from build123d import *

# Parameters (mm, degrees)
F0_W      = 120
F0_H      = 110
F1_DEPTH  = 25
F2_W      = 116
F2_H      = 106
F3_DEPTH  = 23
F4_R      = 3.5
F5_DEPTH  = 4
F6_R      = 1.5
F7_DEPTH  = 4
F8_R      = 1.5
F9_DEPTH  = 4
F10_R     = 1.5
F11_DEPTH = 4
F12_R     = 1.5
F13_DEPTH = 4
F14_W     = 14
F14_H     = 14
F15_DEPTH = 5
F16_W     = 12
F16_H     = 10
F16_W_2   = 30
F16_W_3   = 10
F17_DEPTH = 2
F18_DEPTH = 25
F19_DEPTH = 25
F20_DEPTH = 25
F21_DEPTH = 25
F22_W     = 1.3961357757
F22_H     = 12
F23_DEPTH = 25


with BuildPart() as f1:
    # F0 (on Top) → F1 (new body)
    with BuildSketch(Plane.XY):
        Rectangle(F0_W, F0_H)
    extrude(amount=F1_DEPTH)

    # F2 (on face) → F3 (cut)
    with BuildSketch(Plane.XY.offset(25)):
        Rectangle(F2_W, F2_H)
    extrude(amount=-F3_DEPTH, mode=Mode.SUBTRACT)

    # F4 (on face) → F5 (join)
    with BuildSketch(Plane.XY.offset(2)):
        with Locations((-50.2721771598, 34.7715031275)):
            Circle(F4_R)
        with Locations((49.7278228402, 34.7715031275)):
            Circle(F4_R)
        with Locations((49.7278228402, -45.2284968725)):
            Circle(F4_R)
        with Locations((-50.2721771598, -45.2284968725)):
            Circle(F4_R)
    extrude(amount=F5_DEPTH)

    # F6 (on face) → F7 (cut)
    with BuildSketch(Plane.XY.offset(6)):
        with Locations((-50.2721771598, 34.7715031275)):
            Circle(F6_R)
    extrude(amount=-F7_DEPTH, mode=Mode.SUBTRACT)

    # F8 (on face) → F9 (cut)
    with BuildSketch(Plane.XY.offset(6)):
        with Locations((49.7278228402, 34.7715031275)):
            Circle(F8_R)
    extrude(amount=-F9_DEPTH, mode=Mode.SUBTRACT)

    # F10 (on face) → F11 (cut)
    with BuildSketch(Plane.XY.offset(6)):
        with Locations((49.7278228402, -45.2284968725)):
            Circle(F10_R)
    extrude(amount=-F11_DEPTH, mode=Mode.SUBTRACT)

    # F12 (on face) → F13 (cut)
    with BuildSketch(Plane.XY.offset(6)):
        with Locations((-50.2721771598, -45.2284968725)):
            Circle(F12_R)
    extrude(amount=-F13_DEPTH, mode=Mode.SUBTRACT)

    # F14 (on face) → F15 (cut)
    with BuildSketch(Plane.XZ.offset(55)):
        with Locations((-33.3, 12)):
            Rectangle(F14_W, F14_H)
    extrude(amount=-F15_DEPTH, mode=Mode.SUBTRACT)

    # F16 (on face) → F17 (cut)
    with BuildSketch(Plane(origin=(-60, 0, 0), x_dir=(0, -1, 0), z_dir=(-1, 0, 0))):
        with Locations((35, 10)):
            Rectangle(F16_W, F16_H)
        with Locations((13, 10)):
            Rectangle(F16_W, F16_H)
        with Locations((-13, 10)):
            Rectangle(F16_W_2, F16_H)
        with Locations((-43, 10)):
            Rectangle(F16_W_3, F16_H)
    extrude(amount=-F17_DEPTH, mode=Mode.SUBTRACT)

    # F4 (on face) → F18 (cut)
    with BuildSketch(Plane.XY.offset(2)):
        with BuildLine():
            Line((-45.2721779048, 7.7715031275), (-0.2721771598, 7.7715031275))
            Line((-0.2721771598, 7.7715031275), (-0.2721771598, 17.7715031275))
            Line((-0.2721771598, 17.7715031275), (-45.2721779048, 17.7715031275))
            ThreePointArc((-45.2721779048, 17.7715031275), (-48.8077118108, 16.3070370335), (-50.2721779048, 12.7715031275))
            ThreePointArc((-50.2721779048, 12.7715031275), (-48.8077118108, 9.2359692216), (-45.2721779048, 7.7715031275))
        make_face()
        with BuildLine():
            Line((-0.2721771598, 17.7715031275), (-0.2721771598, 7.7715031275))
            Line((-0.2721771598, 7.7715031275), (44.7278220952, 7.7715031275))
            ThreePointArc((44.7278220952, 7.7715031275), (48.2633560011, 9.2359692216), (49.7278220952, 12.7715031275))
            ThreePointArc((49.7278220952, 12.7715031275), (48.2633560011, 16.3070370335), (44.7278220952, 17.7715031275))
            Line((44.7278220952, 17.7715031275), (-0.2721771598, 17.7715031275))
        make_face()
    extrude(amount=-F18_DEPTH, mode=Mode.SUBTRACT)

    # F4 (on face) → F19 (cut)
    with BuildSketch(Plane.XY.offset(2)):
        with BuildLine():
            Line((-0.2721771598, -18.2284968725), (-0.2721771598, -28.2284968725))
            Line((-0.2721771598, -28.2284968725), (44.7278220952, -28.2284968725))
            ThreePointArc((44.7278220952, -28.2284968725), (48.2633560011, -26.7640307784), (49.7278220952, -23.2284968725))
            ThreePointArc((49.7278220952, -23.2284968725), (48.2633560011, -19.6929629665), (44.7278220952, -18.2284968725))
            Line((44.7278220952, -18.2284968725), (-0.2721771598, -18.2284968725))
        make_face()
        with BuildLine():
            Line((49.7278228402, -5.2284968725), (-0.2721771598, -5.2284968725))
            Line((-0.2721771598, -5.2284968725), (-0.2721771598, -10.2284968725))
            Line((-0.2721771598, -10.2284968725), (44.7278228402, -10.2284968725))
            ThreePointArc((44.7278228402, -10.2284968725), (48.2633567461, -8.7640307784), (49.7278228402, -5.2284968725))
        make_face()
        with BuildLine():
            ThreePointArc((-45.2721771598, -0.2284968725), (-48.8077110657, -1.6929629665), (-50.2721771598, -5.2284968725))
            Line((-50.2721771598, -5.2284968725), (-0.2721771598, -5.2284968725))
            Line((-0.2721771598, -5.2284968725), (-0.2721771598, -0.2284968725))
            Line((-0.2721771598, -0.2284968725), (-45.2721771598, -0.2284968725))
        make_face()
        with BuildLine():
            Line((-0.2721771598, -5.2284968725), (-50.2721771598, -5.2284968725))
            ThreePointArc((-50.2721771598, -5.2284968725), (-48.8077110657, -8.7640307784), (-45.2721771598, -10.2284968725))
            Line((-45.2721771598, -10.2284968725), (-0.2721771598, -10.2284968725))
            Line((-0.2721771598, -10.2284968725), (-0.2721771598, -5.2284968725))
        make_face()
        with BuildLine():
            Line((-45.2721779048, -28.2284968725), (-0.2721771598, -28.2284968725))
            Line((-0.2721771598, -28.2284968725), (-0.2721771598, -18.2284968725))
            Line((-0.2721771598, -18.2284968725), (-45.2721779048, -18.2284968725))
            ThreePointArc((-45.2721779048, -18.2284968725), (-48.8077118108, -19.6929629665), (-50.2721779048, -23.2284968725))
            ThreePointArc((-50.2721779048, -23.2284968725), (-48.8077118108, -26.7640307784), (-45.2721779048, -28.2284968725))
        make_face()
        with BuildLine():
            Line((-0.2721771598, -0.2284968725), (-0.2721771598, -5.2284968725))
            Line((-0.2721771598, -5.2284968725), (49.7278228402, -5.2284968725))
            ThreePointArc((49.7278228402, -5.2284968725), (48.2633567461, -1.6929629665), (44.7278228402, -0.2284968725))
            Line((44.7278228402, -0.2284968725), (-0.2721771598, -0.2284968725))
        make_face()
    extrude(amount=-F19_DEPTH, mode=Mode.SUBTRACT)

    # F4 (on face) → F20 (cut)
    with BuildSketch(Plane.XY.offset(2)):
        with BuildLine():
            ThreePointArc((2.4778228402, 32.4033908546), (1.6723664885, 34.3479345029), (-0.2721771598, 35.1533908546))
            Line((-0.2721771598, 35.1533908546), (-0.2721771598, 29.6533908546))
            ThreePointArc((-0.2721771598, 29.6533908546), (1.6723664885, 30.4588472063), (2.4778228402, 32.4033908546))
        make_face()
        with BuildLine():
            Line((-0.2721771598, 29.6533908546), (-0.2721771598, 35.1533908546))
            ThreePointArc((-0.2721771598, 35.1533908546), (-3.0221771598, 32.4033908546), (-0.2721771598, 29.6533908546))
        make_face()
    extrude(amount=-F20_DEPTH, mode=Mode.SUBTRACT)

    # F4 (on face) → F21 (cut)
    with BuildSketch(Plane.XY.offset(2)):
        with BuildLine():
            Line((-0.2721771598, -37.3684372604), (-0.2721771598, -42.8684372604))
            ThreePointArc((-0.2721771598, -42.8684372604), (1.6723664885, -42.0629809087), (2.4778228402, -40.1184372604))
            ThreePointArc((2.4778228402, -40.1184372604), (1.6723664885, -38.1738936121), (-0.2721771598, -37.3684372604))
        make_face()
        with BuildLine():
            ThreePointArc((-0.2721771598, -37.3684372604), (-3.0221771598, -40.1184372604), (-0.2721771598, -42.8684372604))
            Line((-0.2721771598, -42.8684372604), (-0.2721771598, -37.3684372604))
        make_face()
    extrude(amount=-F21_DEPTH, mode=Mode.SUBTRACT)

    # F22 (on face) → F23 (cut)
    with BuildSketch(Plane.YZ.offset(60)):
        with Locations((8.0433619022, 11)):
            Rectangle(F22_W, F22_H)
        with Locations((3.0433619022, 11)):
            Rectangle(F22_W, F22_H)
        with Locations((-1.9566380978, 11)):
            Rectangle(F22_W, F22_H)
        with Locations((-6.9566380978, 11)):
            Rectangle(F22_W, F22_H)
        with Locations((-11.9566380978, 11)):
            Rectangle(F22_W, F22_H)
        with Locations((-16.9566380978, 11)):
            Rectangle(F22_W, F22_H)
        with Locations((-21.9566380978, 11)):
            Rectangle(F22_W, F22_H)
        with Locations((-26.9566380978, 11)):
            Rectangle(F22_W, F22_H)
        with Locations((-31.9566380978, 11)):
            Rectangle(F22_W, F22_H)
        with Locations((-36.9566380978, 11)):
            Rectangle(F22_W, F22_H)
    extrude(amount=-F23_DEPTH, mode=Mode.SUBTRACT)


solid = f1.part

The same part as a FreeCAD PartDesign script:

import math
import FreeCAD as App
import Part
import Sketcher
from FreeCAD import Vector
Q = App.Units.Quantity


def add_polygon(sketch, points):
    """Adds a closed chain of lines whose ends are joined by coincident constraints."""
    first, n = sketch.GeometryCount, len(points)
    for a, b in zip(points, points[1:] + points[:1]):
        sketch.addGeometry(Part.LineSegment(App.Vector(*a, 0), App.Vector(*b, 0)), False)
    for i in range(n):
        sketch.addConstraint(Sketcher.Constraint("Coincident", first + i, 2, first + (i + 1) % n, 1))

doc = App.newDocument("Part")
params = doc.addObject("Spreadsheet::Sheet", "Params")
for row, (alias, value) in enumerate([
    ("sketch1_width", "120 mm"),
    ("sketch1_height", "110 mm"),
    ("pad1_length", "25 mm"),
    ("sketch2_width", "116 mm"),
    ("sketch2_height", "106 mm"),
    ("pocket1_length", "23 mm"),
    ("sketch3_diameter", "7 mm"),
    ("pad2_length", "4 mm"),
    ("sketch4_diameter", "3 mm"),
    ("pocket2_length", "4 mm"),
    ("sketch5_diameter", "3 mm"),
    ("pocket3_length", "4 mm"),
    ("sketch6_diameter", "3 mm"),
    ("pocket4_length", "4 mm"),
    ("sketch7_diameter", "3 mm"),
    ("pocket5_length", "4 mm"),
    ("sketch8_width", "14 mm"),
    ("pocket6_length", "5 mm"),
    ("sketch9_width", "12 mm"),
    ("sketch9_width2", "30 mm"),
    ("sketch9_width3", "10 mm"),
    ("pocket7_length", "2 mm"),
    ("sketch10_radius", "5 mm"),
    ("sketch10_width", "90 mm"),
    ("pocket8_length", "25 mm"),
    ("sketch11_radius", "5 mm"),
    ("sketch11_width", "90 mm"),
    ("pocket9_length", "25 mm"),
    ("sketch12_radius", "2.75 mm"),
    ("pocket10_length", "25 mm"),
    ("sketch13_radius", "2.75 mm"),
    ("pocket11_length", "25 mm"),
    ("sketch14_height", "12 mm"),
    ("pocket12_length", "25 mm"),
], start=1):
    params.set(f"A{row}", alias)
    params.set(f"B{row}", "=" + value)
    params.setAlias(f"B{row}", alias)

body = doc.addObject("PartDesign::Body", "Body")

# Sketch on XY plane
sketch1 = doc.addObject("Sketcher::SketchObject", "Sketch")
body.addObject(sketch1)
sketch1.AttachmentSupport = (doc.XY_Plane, [""])
sketch1.MapMode = "FlatFace"
add_polygon(sketch1, [(-60, 55), (-60, -55), (60, -55), (60, 55)])  # lines 0-3
sketch1.addConstraint([
    Sketcher.Constraint("Vertical", 0),
    Sketcher.Constraint("Horizontal", 1),
    Sketcher.Constraint("Vertical", 2),
    Sketcher.Constraint("Horizontal", 3),
    Sketcher.Constraint("Symmetric", 0, 2, 2, 2, -1, 1),
    Sketcher.Constraint("DistanceX", 1, 1, 1, 2, Q("120 mm")),
    Sketcher.Constraint("DistanceY", 0, 2, 0, 1, Q("110 mm")),
])
sketch1.setExpression("Constraints[9]", "Params.sketch1_width")
sketch1.setExpression("Constraints[10]", "Params.sketch1_height")
pad1 = doc.addObject("PartDesign::Pad", "Pad")
body.addObject(pad1)
pad1.Profile = sketch1
pad1.setExpression("Length", "Params.pad1_length")

# Sketch on XY plane
sketch2 = doc.addObject("Sketcher::SketchObject", "Sketch001")
body.addObject(sketch2)
sketch2.AttachmentSupport = (doc.XY_Plane, [""])
sketch2.MapMode = "FlatFace"
sketch2.AttachmentOffset = App.Placement(Vector(0, 0, 25), App.Rotation())
add_polygon(sketch2, [(-58, 53), (-58, -53), (58, -53), (58, 53)])  # lines 0-3
sketch2.addConstraint([
    Sketcher.Constraint("Vertical", 0),
    Sketcher.Constraint("Horizontal", 1),
    Sketcher.Constraint("Vertical", 2),
    Sketcher.Constraint("Horizontal", 3),
    Sketcher.Constraint("Symmetric", 0, 2, 2, 2, -1, 1),
    Sketcher.Constraint("DistanceX", 1, 1, 1, 2, Q("116 mm")),
    Sketcher.Constraint("DistanceY", 0, 2, 0, 1, Q("106 mm")),
])
sketch2.setExpression("Constraints[9]", "Params.sketch2_width")
sketch2.setExpression("Constraints[10]", "Params.sketch2_height")
pocket1 = doc.addObject("PartDesign::Pocket", "Pocket")
body.addObject(pocket1)
pocket1.Profile = sketch2
pocket1.setExpression("Length", "Params.pocket1_length")

# Sketch on XY plane
sketch3 = doc.addObject("Sketcher::SketchObject", "Sketch002")
body.addObject(sketch3)
sketch3.AttachmentSupport = (doc.XY_Plane, [""])
sketch3.MapMode = "FlatFace"
sketch3.AttachmentOffset = App.Placement(Vector(0, 0, 2), App.Rotation())
sketch3.addGeometry([
    Part.Circle(Vector(-50.3, 34.8, 0), Vector(0, 0, 1), 3.5),
    Part.Circle(Vector(49.7, 34.8, 0), Vector(0, 0, 1), 3.5),
    Part.Circle(Vector(49.7, -45.2, 0), Vector(0, 0, 1), 3.5),
    Part.Circle(Vector(-50.3, -45.2, 0), Vector(0, 0, 1), 3.5),
], False)
sketch3.addConstraint([
    Sketcher.Constraint("Equal", 0, 1),
    Sketcher.Constraint("Equal", 1, 2),
    Sketcher.Constraint("Equal", 2, 3),
    Sketcher.Constraint("Horizontal", 0, 3, 1, 3),
    Sketcher.Constraint("Horizontal", 2, 3, 3, 3),
    Sketcher.Constraint("Vertical", 1, 3, 2, 3),
    Sketcher.Constraint("Vertical", 0, 3, 3, 3),
    Sketcher.Constraint("Diameter", 0, Q("7 mm")),
    Sketcher.Constraint("DistanceX", 0, 3, 1, 3, Q("100 mm")),
    Sketcher.Constraint("DistanceY", 2, 3, 1, 3, Q("80 mm")),
    Sketcher.Constraint("DistanceX", 0, 3, -1, 1, Q("50.272177 mm")),
    Sketcher.Constraint("DistanceY", -1, 1, 0, 3, Q("34.771503 mm")),
])
sketch3.setExpression("Constraints[7]", "Params.sketch3_diameter")
pad2 = doc.addObject("PartDesign::Pad", "Pad001")
body.addObject(pad2)
pad2.Profile = sketch3
pad2.setExpression("Length", "Params.pad2_length")

# Sketch on XY plane
sketch4 = doc.addObject("Sketcher::SketchObject", "Sketch003")
body.addObject(sketch4)
sketch4.AttachmentSupport = (doc.XY_Plane, [""])
sketch4.MapMode = "FlatFace"
sketch4.AttachmentOffset = App.Placement(Vector(0, 0, 6), App.Rotation())
sketch4.addGeometry(Part.Circle(Vector(-50.3, 34.8, 0), Vector(0, 0, 1), 1.5), False)
sketch4.addConstraint([
    Sketcher.Constraint("Diameter", 0, Q("3 mm")),
    Sketcher.Constraint("DistanceX", 0, 3, -1, 1, Q("50.272177 mm")),
    Sketcher.Constraint("DistanceY", -1, 1, 0, 3, Q("34.771503 mm")),
])
sketch4.setExpression("Constraints[0]", "Params.sketch4_diameter")
pocket2 = doc.addObject("PartDesign::Pocket", "Pocket001")
body.addObject(pocket2)
pocket2.Profile = sketch4
pocket2.setExpression("Length", "Params.pocket2_length")

# Sketch on XY plane
sketch5 = doc.addObject("Sketcher::SketchObject", "Sketch004")
body.addObject(sketch5)
sketch5.AttachmentSupport = (doc.XY_Plane, [""])
sketch5.MapMode = "FlatFace"
sketch5.AttachmentOffset = App.Placement(Vector(0, 0, 6), App.Rotation())
sketch5.addGeometry(Part.Circle(Vector(49.7, 34.8, 0), Vector(0, 0, 1), 1.5), False)
sketch5.addConstraint([
    Sketcher.Constraint("Diameter", 0, Q("3 mm")),
    Sketcher.Constraint("DistanceX", -1, 1, 0, 3, Q("49.727823 mm")),
    Sketcher.Constraint("DistanceY", -1, 1, 0, 3, Q("34.771503 mm")),
])
sketch5.setExpression("Constraints[0]", "Params.sketch5_diameter")
pocket3 = doc.addObject("PartDesign::Pocket", "Pocket002")
body.addObject(pocket3)
pocket3.Profile = sketch5
pocket3.setExpression("Length", "Params.pocket3_length")

# Sketch on XY plane
sketch6 = doc.addObject("Sketcher::SketchObject", "Sketch005")
body.addObject(sketch6)
sketch6.AttachmentSupport = (doc.XY_Plane, [""])
sketch6.MapMode = "FlatFace"
sketch6.AttachmentOffset = App.Placement(Vector(0, 0, 6), App.Rotation())
sketch6.addGeometry(Part.Circle(Vector(49.7, -45.2, 0), Vector(0, 0, 1), 1.5), False)
sketch6.addConstraint([
    Sketcher.Constraint("Diameter", 0, Q("3 mm")),
    Sketcher.Constraint("DistanceX", -1, 1, 0, 3, Q("49.727823 mm")),
    Sketcher.Constraint("DistanceY", 0, 3, -1, 1, Q("45.228497 mm")),
])
sketch6.setExpression("Constraints[0]", "Params.sketch6_diameter")
pocket4 = doc.addObject("PartDesign::Pocket", "Pocket003")
body.addObject(pocket4)
pocket4.Profile = sketch6
pocket4.setExpression("Length", "Params.pocket4_length")

# Sketch on XY plane
sketch7 = doc.addObject("Sketcher::SketchObject", "Sketch006")
body.addObject(sketch7)
sketch7.AttachmentSupport = (doc.XY_Plane, [""])
sketch7.MapMode = "FlatFace"
sketch7.AttachmentOffset = App.Placement(Vector(0, 0, 6), App.Rotation())
sketch7.addGeometry(Part.Circle(Vector(-50.3, -45.2, 0), Vector(0, 0, 1), 1.5), False)
sketch7.addConstraint([
    Sketcher.Constraint("Diameter", 0, Q("3 mm")),
    Sketcher.Constraint("DistanceX", 0, 3, -1, 1, Q("50.272177 mm")),
    Sketcher.Constraint("DistanceY", 0, 3, -1, 1, Q("45.228497 mm")),
])
sketch7.setExpression("Constraints[0]", "Params.sketch7_diameter")
pocket5 = doc.addObject("PartDesign::Pocket", "Pocket004")
body.addObject(pocket5)
pocket5.Profile = sketch7
pocket5.setExpression("Length", "Params.pocket5_length")

# Sketch on XZ plane
sketch8 = doc.addObject("Sketcher::SketchObject", "Sketch007")
body.addObject(sketch8)
sketch8.AttachmentSupport = (doc.XZ_Plane, [""])
sketch8.MapMode = "FlatFace"
sketch8.AttachmentOffset = App.Placement(Vector(0, 0, 55), App.Rotation())
add_polygon(sketch8, [(-40, 19), (-40, 5), (-26, 5), (-26, 19)])  # lines 0-3
sketch8.addConstraint([
    Sketcher.Constraint("Vertical", 0),
    Sketcher.Constraint("Horizontal", 1),
    Sketcher.Constraint("Vertical", 2),
    Sketcher.Constraint("Horizontal", 3),
    Sketcher.Constraint("Equal", 3, 0),
    Sketcher.Constraint("DistanceX", 1, 1, 1, 2, Q("14 mm")),
    Sketcher.Constraint("DistanceY", -1, 1, 0, 2, Q("5 mm")),
    Sketcher.Constraint("DistanceX", 0, 2, -1, 1, Q("40.3 mm")),
])
sketch8.setExpression("Constraints[9]", "Params.sketch8_width")
pocket6 = doc.addObject("PartDesign::Pocket", "Pocket005")
body.addObject(pocket6)
pocket6.Profile = sketch8
pocket6.setExpression("Length", "Params.pocket6_length")

# Sketch on YZ plane
sketch9 = doc.addObject("Sketcher::SketchObject", "Sketch008")
body.addObject(sketch9)
sketch9.AttachmentSupport = (doc.YZ_Plane, [""])
sketch9.MapMode = "FlatFace"
sketch9.AttachmentOffset = App.Placement(Vector(0, 0, -60), App.Rotation())
add_polygon(sketch9, [(-29, 15), (-29, 5), (-41, 5), (-41, 15)])  # lines 0-3
add_polygon(sketch9, [(-7, 15), (-7, 5), (-19, 5), (-19, 15)])  # lines 4-7
add_polygon(sketch9, [(28, 15), (28, 5), (-2, 5), (-2, 15)])  # lines 8-11
add_polygon(sketch9, [(48, 15), (48, 5), (38, 5), (38, 15)])  # lines 12-15
sketch9.addConstraint([
    Sketcher.Constraint("Vertical", 0),
    Sketcher.Constraint("Horizontal", 1),
    Sketcher.Constraint("Vertical", 2),
    Sketcher.Constraint("Horizontal", 3),
    Sketcher.Constraint("Vertical", 4),
    Sketcher.Constraint("Horizontal", 5),
    Sketcher.Constraint("Vertical", 6),
    Sketcher.Constraint("Horizontal", 7),
    Sketcher.Constraint("Vertical", 8),
    Sketcher.Constraint("Horizontal", 9),
    Sketcher.Constraint("Vertical", 10),
    Sketcher.Constraint("Horizontal", 11),
    Sketcher.Constraint("Vertical", 12),
    Sketcher.Constraint("Horizontal", 13),
    Sketcher.Constraint("Vertical", 14),
    Sketcher.Constraint("Horizontal", 15),
    Sketcher.Constraint("Horizontal", 1, 2, 4, 2),
    Sketcher.Constraint("Horizontal", 3, 2, 6, 2),
    Sketcher.Constraint("Horizontal", 5, 2, 8, 2),
    Sketcher.Constraint("Horizontal", 7, 2, 10, 2),
    Sketcher.Constraint("Horizontal", 9, 2, 12, 2),
    Sketcher.Constraint("Horizontal", 11, 2, 14, 2),
    Sketcher.Constraint("Equal", 3, 5),
    Sketcher.Constraint("Equal", 15, 0),
    Sketcher.Constraint("DistanceX", 1, 2, 1, 1, Q("12 mm")),
    Sketcher.Constraint("DistanceX", 9, 2, 9, 1, Q("30 mm")),
    Sketcher.Constraint("DistanceX", 13, 2, 13, 1, Q("10 mm")),
    Sketcher.Constraint("DistanceX", 0, 2, -1, 1, Q("29 mm")),
    Sketcher.Constraint("DistanceY", -1, 1, 0, 2, Q("5 mm")),
    Sketcher.Constraint("DistanceX", 4, 2, -1, 1, Q("7 mm")),
    Sketcher.Constraint("DistanceX", -1, 1, 8, 2, Q("28 mm")),
    Sketcher.Constraint("DistanceX", -1, 1, 12, 2, Q("48 mm")),
])
sketch9.setExpression("Constraints[40]", "Params.sketch9_width")
sketch9.setExpression("Constraints[41]", "Params.sketch9_width2")
sketch9.setExpression("Constraints[42]", "Params.sketch9_width3")
pocket7 = doc.addObject("PartDesign::Pocket", "Pocket006")
body.addObject(pocket7)
pocket7.Profile = sketch9
pocket7.setExpression("Length", "Params.pocket7_length")
pocket7.Reversed = True

# Sketch on XY plane
sketch10 = doc.addObject("Sketcher::SketchObject", "Sketch009")
body.addObject(sketch10)
sketch10.AttachmentSupport = (doc.XY_Plane, [""])
sketch10.MapMode = "FlatFace"
sketch10.AttachmentOffset = App.Placement(Vector(0, 0, 2), App.Rotation())
sketch10.addGeometry([
    Part.LineSegment(Vector(-45, 8, 0), Vector(45, 8, 0)),  # 0
    Part.ArcOfCircle(Part.Circle(Vector(45, 13, 0), Vector(0, 0, 1), 5), math.radians(-90), math.radians(0)),  # 1
    Part.ArcOfCircle(Part.Circle(Vector(45, 13, 0), Vector(0, 0, 1), 5), math.radians(0), math.radians(90)),  # 2
    Part.LineSegment(Vector(45, 18, 0), Vector(-45, 18, 0)),  # 3
    Part.ArcOfCircle(Part.Circle(Vector(-45, 13, 0), Vector(0, 0, 1), 5), math.radians(90), math.radians(180)),  # 4
    Part.ArcOfCircle(Part.Circle(Vector(-45, 13, 0), Vector(0, 0, 1), 5), math.radians(180), math.radians(270)),  # 5
], False)
sketch10.addConstraint([
    Sketcher.Constraint("Tangent", 0, 2, 1, 1),
    Sketcher.Constraint("Tangent", 1, 2, 2, 1),
    Sketcher.Constraint("Tangent", 2, 2, 3, 1),
    Sketcher.Constraint("Tangent", 3, 2, 4, 1),
    Sketcher.Constraint("Tangent", 4, 2, 5, 1),
    Sketcher.Constraint("Tangent", 5, 2, 0, 1),
    Sketcher.Constraint("Horizontal", 0),
    Sketcher.Constraint("Horizontal", 3),
    Sketcher.Constraint("Equal", 1, 2),
    Sketcher.Constraint("Equal", 2, 4),
    Sketcher.Constraint("Horizontal", 5, 3, 1, 2),
    Sketcher.Constraint("Horizontal", 1, 2, 4, 2),
    Sketcher.Constraint("Radius", 1, Q("5 mm")),
    Sketcher.Constraint("DistanceX", 0, 1, 0, 2, Q("90 mm")),
    Sketcher.Constraint("DistanceX", -1, 1, 1, 3, Q("44.727822 mm")),
    Sketcher.Constraint("DistanceY", -1, 1, 1, 3, Q("12.771503 mm")),
])
sketch10.setExpression("Constraints[12]", "Params.sketch10_radius")
sketch10.setExpression("Constraints[13]", "Params.sketch10_width")
pocket8 = doc.addObject("PartDesign::Pocket", "Pocket007")
body.addObject(pocket8)
pocket8.Profile = sketch10
pocket8.setExpression("Length", "Params.pocket8_length")

# Sketch on XY plane
sketch11 = doc.addObject("Sketcher::SketchObject", "Sketch010")
body.addObject(sketch11)
sketch11.AttachmentSupport = (doc.XY_Plane, [""])
sketch11.MapMode = "FlatFace"
sketch11.AttachmentOffset = App.Placement(Vector(0, 0, 2), App.Rotation())
sketch11.addGeometry([
    Part.ArcOfCircle(Part.Circle(Vector(45, -23, 0), Vector(0, 0, 1), 5), math.radians(-90), math.radians(0)),  # 0
    Part.ArcOfCircle(Part.Circle(Vector(45, -23, 0), Vector(0, 0, 1), 5), math.radians(0), math.radians(90)),  # 1
    Part.LineSegment(Vector(45, -18, 0), Vector(-45, -18, 0)),  # 2
    Part.ArcOfCircle(Part.Circle(Vector(-45, -23, 0), Vector(0, 0, 1), 5), math.radians(90), math.radians(180)),  # 3
    Part.ArcOfCircle(Part.Circle(Vector(-45, -23, 0), Vector(0, 0, 1), 5), math.radians(180), math.radians(270)),  # 4
    Part.LineSegment(Vector(-45, -28, 0), Vector(45, -28, 0)),  # 5
    Part.ArcOfCircle(Part.Circle(Vector(-45, -5, 0), Vector(0, 0, 1), 5), math.radians(90), math.radians(180)),  # 6
    Part.ArcOfCircle(Part.Circle(Vector(-45, -5, 0), Vector(0, 0, 1), 5), math.radians(-180), math.radians(-90)),  # 7
    Part.LineSegment(Vector(-45, -10, 0), Vector(45, -10, 0)),  # 8
    Part.ArcOfCircle(Part.Circle(Vector(45, -5, 0), Vector(0, 0, 1), 5), math.radians(-90), math.radians(0)),  # 9
    Part.ArcOfCircle(Part.Circle(Vector(45, -5, 0), Vector(0, 0, 1), 5), math.radians(0), math.radians(90)),  # 10
    Part.LineSegment(Vector(45, 0, 0), Vector(-45, 0, 0)),  # 11
], False)
sketch11.addConstraint([
    Sketcher.Constraint("Tangent", 0, 2, 1, 1),
    Sketcher.Constraint("Tangent", 1, 2, 2, 1),
    Sketcher.Constraint("Tangent", 2, 2, 3, 1),
    Sketcher.Constraint("Tangent", 3, 2, 4, 1),
    Sketcher.Constraint("Tangent", 4, 2, 5, 1),
    Sketcher.Constraint("Tangent", 5, 2, 0, 1),
    Sketcher.Constraint("Tangent", 6, 2, 7, 1),
    Sketcher.Constraint("Tangent", 7, 2, 8, 1),
    Sketcher.Constraint("Tangent", 8, 2, 9, 1),
    Sketcher.Constraint("Tangent", 9, 2, 10, 1),
    Sketcher.Constraint("Tangent", 10, 2, 11, 1),
    Sketcher.Constraint("Tangent", 11, 2, 6, 1),
    Sketcher.Constraint("Horizontal", 2),
    Sketcher.Constraint("Horizontal", 5),
    Sketcher.Constraint("Horizontal", 8),
    Sketcher.Constraint("Horizontal", 11),
    Sketcher.Constraint("Equal", 0, 1),
    Sketcher.Constraint("Equal", 1, 3),
    Sketcher.Constraint("Equal", 4, 6),
    Sketcher.Constraint("Equal", 6, 7),
    Sketcher.Constraint("Equal", 7, 9),
    Sketcher.Constraint("Horizontal", 4, 3, 0, 2),
    Sketcher.Constraint("Horizontal", 0, 2, 3, 2),
    Sketcher.Constraint("Horizontal", 10, 3, 6, 2),
    Sketcher.Constraint("Horizontal", 6, 2, 9, 2),
    Sketcher.Constraint("Vertical", 4, 3, 6, 3),
    Sketcher.Constraint("Vertical", 1, 3, 9, 3),
    Sketcher.Constraint("Radius", 0, Q("5 mm")),
    Sketcher.Constraint("DistanceX", 2, 2, 2, 1, Q("90 mm")),
    Sketcher.Constraint("DistanceY", 3, 3, 6, 3, Q("18 mm")),
    Sketcher.Constraint("DistanceX", -1, 1, 0, 3, Q("44.727822 mm")),
    Sketcher.Constraint("DistanceY", 0, 3, -1, 1, Q("23.228497 mm")),
])
sketch11.setExpression("Constraints[27]", "Params.sketch11_radius")
sketch11.setExpression("Constraints[28]", "Params.sketch11_width")
pocket9 = doc.addObject("PartDesign::Pocket", "Pocket008")
body.addObject(pocket9)
pocket9.Profile = sketch11
pocket9.setExpression("Length", "Params.pocket9_length")

# Sketch on XY plane
sketch12 = doc.addObject("Sketcher::SketchObject", "Sketch011")
body.addObject(sketch12)
sketch12.AttachmentSupport = (doc.XY_Plane, [""])
sketch12.MapMode = "FlatFace"
sketch12.AttachmentOffset = App.Placement(Vector(0, 0, 2), App.Rotation())
sketch12.addGeometry([
    Part.ArcOfCircle(Part.Circle(Vector(-0.3, 32.4, 0), Vector(0, 0, 1), 2.8), math.radians(0), math.radians(90)),
    Part.ArcOfCircle(Part.Circle(Vector(-0.3, 32.4, 0), Vector(0, 0, 1), 2.8), math.radians(90), math.radians(270)),
    Part.ArcOfCircle(Part.Circle(Vector(-0.3, 32.4, 0), Vector(0, 0, 1), 2.8), math.radians(-90), math.radians(0)),
], False)
sketch12.addConstraint([
    Sketcher.Constraint("Tangent", 0, 2, 1, 1),
    Sketcher.Constraint("Tangent", 1, 2, 2, 1),
    Sketcher.Constraint("Tangent", 2, 2, 0, 1),
    Sketcher.Constraint("Horizontal", 1, 3, 2, 2),
    Sketcher.Constraint("Vertical", 2, 3, 0, 2),
    Sketcher.Constraint("Vertical", 0, 2, 1, 2),
    Sketcher.Constraint("Radius", 0, Q("2.75 mm")),
    Sketcher.Constraint("DistanceY", -1, 1, 0, 3, Q("32.403391 mm")),
    Sketcher.Constraint("DistanceX", 0, 3, -1, 1, Q("0.272177 mm")),
])
sketch12.setExpression("Constraints[6]", "Params.sketch12_radius")
pocket10 = doc.addObject("PartDesign::Pocket", "Pocket009")
body.addObject(pocket10)
pocket10.Profile = sketch12
pocket10.setExpression("Length", "Params.pocket10_length")

# Sketch on XY plane
sketch13 = doc.addObject("Sketcher::SketchObject", "Sketch012")
body.addObject(sketch13)
sketch13.AttachmentSupport = (doc.XY_Plane, [""])
sketch13.MapMode = "FlatFace"
sketch13.AttachmentOffset = App.Placement(Vector(0, 0, 2), App.Rotation())
sketch13.addGeometry([
    Part.ArcOfCircle(Part.Circle(Vector(-0.3, -40.1, 0), Vector(0, 0, 1), 2.8), math.radians(-90), math.radians(0)),
    Part.ArcOfCircle(Part.Circle(Vector(-0.3, -40.1, 0), Vector(0, 0, 1), 2.8), math.radians(0), math.radians(90)),
    Part.ArcOfCircle(Part.Circle(Vector(-0.3, -40.1, 0), Vector(0, 0, 1), 2.8), math.radians(90), math.radians(270)),
], False)
sketch13.addConstraint([
    Sketcher.Constraint("Tangent", 0, 2, 1, 1),
    Sketcher.Constraint("Tangent", 1, 2, 2, 1),
    Sketcher.Constraint("Tangent", 2, 2, 0, 1),
    Sketcher.Constraint("Horizontal", 2, 3, 0, 2),
    Sketcher.Constraint("Vertical", 2, 3, 1, 2),
    Sketcher.Constraint("Vertical", 1, 2, 2, 2),
    Sketcher.Constraint("Radius", 0, Q("2.75 mm")),
    Sketcher.Constraint("DistanceX", 0, 3, -1, 1, Q("0.272177 mm")),
    Sketcher.Constraint("DistanceY", 0, 3, -1, 1, Q("40.118437 mm")),
])
sketch13.setExpression("Constraints[6]", "Params.sketch13_radius")
pocket11 = doc.addObject("PartDesign::Pocket", "Pocket010")
body.addObject(pocket11)
pocket11.Profile = sketch13
pocket11.setExpression("Length", "Params.pocket11_length")

# Sketch on YZ plane
sketch14 = doc.addObject("Sketcher::SketchObject", "Sketch013")
body.addObject(sketch14)
sketch14.AttachmentSupport = (doc.YZ_Plane, [""])
sketch14.MapMode = "FlatFace"
sketch14.AttachmentOffset = App.Placement(Vector(0, 0, 60), App.Rotation())
add_polygon(sketch14, [(7.3, 17), (7.3, 5), (8.7, 5), (8.7, 17)])  # lines 0-3
add_polygon(sketch14, [(2.3, 17), (2.3, 5), (3.7, 5), (3.7, 17)])  # lines 4-7
add_polygon(sketch14, [(-2.7, 17), (-2.7, 5), (-1.3, 5), (-1.3, 17)])  # lines 8-11
add_polygon(sketch14, [(-7.7, 17), (-7.7, 5), (-6.3, 5), (-6.3, 17)])  # lines 12-15
add_polygon(sketch14, [(-12.7, 17), (-12.7, 5), (-11.3, 5), (-11.3, 17)])  # lines 16-19
add_polygon(sketch14, [(-17.7, 17), (-17.7, 5), (-16.3, 5), (-16.3, 17)])  # lines 20-23
add_polygon(sketch14, [(-22.7, 17), (-22.7, 5), (-21.3, 5), (-21.3, 17)])  # lines 24-27
add_polygon(sketch14, [(-27.7, 17), (-27.7, 5), (-26.3, 5), (-26.3, 17)])  # lines 28-31
add_polygon(sketch14, [(-32.7, 17), (-32.7, 5), (-31.3, 5), (-31.3, 17)])  # lines 32-35
add_polygon(sketch14, [(-37.7, 17), (-37.7, 5), (-36.3, 5), (-36.3, 17)])  # lines 36-39
sketch14.addConstraint([
    Sketcher.Constraint("Vertical", 0),
    Sketcher.Constraint("Horizontal", 1),
    Sketcher.Constraint("Vertical", 2),
    Sketcher.Constraint("Horizontal", 3),
    Sketcher.Constraint("Vertical", 4),
    Sketcher.Constraint("Horizontal", 5),
    Sketcher.Constraint("Vertical", 6),
    Sketcher.Constraint("Horizontal", 7),
    Sketcher.Constraint("Vertical", 8),
    Sketcher.Constraint("Horizontal", 9),
    Sketcher.Constraint("Vertical", 10),
    Sketcher.Constraint("Horizontal", 11),
    Sketcher.Constraint("Vertical", 12),
    Sketcher.Constraint("Horizontal", 13),
    Sketcher.Constraint("Vertical", 14),
    Sketcher.Constraint("Horizontal", 15),
    Sketcher.Constraint("Vertical", 16),
    Sketcher.Constraint("Horizontal", 17),
    Sketcher.Constraint("Vertical", 18),
    Sketcher.Constraint("Horizontal", 19),
    Sketcher.Constraint("Vertical", 20),
    Sketcher.Constraint("Horizontal", 21),
    Sketcher.Constraint("Vertical", 22),
    Sketcher.Constraint("Horizontal", 23),
    Sketcher.Constraint("Vertical", 24),
    Sketcher.Constraint("Horizontal", 25),
    Sketcher.Constraint("Vertical", 26),
    Sketcher.Constraint("Horizontal", 27),
    Sketcher.Constraint("Vertical", 28),
    Sketcher.Constraint("Horizontal", 29),
    Sketcher.Constraint("Vertical", 30),
    Sketcher.Constraint("Horizontal", 31),
    Sketcher.Constraint("Vertical", 32),
    Sketcher.Constraint("Horizontal", 33),
    Sketcher.Constraint("Vertical", 34),
    Sketcher.Constraint("Horizontal", 35),
    Sketcher.Constraint("Vertical", 36),
    Sketcher.Constraint("Horizontal", 37),
    Sketcher.Constraint("Vertical", 38),
    Sketcher.Constraint("Horizontal", 39),
    Sketcher.Constraint("Horizontal", 1, 2, 4, 2),
    Sketcher.Constraint("Horizontal", 3, 2, 6, 2),
    Sketcher.Constraint("Horizontal", 5, 2, 8, 2),
    Sketcher.Constraint("Horizontal", 7, 2, 10, 2),
    Sketcher.Constraint("Horizontal", 9, 2, 12, 2),
    Sketcher.Constraint("Horizontal", 11, 2, 14, 2),
    Sketcher.Constraint("Horizontal", 13, 2, 16, 2),
    Sketcher.Constraint("Horizontal", 15, 2, 18, 2),
    Sketcher.Constraint("Horizontal", 17, 2, 20, 2),
    Sketcher.Constraint("Horizontal", 19, 2, 22, 2),
    Sketcher.Constraint("Horizontal", 21, 2, 24, 2),
    Sketcher.Constraint("Horizontal", 23, 2, 26, 2),
    Sketcher.Constraint("Horizontal", 25, 2, 28, 2),
    Sketcher.Constraint("Horizontal", 27, 2, 30, 2),
    Sketcher.Constraint("Horizontal", 29, 2, 32, 2),
    Sketcher.Constraint("Horizontal", 31, 2, 34, 2),
    Sketcher.Constraint("Horizontal", 33, 2, 36, 2),
    Sketcher.Constraint("Horizontal", 35, 2, 38, 2),
    Sketcher.Constraint("Equal", 3, 5),
    Sketcher.Constraint("Equal", 7, 9),
    Sketcher.Constraint("Equal", 11, 13),
    Sketcher.Constraint("Equal", 15, 17),
    Sketcher.Constraint("Equal", 19, 21),
    Sketcher.Constraint("Equal", 23, 25),
    Sketcher.Constraint("Equal", 27, 29),
    Sketcher.Constraint("Equal", 31, 33),
    Sketcher.Constraint("Equal", 35, 37),
    Sketcher.Constraint("DistanceY", 0, 2, 0, 1, Q("12 mm")),
    Sketcher.Constraint("DistanceY", -1, 1, 0, 2, Q("5 mm")),
    Sketcher.Constraint("DistanceX", 4, 2, 0, 2, Q("5 mm")),
    Sketcher.Constraint("DistanceX", 8, 2, 4, 2, Q("5 mm")),
    Sketcher.Constraint("DistanceX", 12, 2, 8, 2, Q("5 mm")),
    Sketcher.Constraint("DistanceX", 16, 2, 12, 2, Q("5 mm")),
    Sketcher.Constraint("DistanceX", 20, 2, 16, 2, Q("5 mm")),
    Sketcher.Constraint("DistanceX", 24, 2, 20, 2, Q("5 mm")),
    Sketcher.Constraint("DistanceX", 28, 2, 24, 2, Q("5 mm")),
    Sketcher.Constraint("DistanceX", 32, 2, 28, 2, Q("5 mm")),
    Sketcher.Constraint("DistanceX", 36, 2, 32, 2, Q("5 mm")),
    Sketcher.Constraint("DistanceX", 1, 1, 1, 2, Q("1.396136 mm")),
    Sketcher.Constraint("DistanceX", -1, 1, 1, 2, Q("8.74143 mm")),
])
sketch14.setExpression("Constraints[107]", "Params.sketch14_height")
pocket12 = doc.addObject("PartDesign::Pocket", "Pocket011")
body.addObject(pocket12)
pocket12.Profile = sketch14
pocket12.setExpression("Length", "Params.pocket12_length")

doc.recompute()
